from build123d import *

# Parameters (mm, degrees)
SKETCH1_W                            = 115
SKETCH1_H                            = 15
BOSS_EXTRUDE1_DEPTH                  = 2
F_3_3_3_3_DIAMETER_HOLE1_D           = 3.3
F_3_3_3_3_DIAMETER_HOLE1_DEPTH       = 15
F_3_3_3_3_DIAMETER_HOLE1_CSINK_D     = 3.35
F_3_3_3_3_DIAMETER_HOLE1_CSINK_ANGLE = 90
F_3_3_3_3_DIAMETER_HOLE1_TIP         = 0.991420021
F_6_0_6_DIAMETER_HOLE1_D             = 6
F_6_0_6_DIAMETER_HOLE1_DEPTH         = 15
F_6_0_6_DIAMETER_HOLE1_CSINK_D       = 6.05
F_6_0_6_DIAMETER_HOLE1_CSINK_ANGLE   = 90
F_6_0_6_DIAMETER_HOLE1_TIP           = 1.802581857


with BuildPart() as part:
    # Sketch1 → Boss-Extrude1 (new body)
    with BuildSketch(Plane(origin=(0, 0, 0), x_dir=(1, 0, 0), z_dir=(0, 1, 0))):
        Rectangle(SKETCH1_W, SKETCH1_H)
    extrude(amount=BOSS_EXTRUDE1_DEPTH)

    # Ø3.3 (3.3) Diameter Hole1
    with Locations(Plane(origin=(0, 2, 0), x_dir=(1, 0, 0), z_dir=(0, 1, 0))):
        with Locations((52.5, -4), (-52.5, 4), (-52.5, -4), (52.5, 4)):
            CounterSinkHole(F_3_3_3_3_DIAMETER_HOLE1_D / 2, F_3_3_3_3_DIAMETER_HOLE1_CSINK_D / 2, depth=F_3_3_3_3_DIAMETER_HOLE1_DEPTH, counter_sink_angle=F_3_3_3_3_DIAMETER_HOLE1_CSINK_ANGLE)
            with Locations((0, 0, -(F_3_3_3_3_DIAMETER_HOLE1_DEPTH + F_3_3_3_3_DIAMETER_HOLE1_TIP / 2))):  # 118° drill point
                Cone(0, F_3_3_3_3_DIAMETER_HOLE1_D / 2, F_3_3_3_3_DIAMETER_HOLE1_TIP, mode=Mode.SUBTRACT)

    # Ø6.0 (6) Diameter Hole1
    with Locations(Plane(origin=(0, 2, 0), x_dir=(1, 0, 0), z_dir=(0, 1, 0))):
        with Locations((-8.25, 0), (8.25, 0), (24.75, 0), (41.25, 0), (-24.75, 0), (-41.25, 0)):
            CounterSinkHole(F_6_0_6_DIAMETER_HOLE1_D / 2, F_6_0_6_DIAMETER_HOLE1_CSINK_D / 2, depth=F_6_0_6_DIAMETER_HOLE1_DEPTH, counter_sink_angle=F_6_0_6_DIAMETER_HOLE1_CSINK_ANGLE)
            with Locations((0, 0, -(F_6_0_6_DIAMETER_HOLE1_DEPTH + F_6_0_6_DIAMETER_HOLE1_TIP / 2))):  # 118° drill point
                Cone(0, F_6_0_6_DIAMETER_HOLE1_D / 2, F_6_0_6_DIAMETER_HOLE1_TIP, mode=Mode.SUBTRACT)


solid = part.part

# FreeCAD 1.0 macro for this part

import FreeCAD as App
import Part
import Sketcher
Q = App.Units.Quantity

doc = App.newDocument("Part")
body = doc.addObject("PartDesign::Body", "Body")

sketch1 = body.newObject("Sketcher::SketchObject", "Sketch")
sketch1.AttachmentSupport = (doc.getObject("XZ_Plane"), [""])
sketch1.MapMode = "FlatFace"
sketch1.addGeometry(Part.LineSegment(App.Vector(-58, -8, 0), App.Vector(-58, 8, 0)), False)
sketch1.addGeometry(Part.LineSegment(App.Vector(-58, 8, 0), App.Vector(58, 8, 0)), False)
sketch1.addGeometry(Part.LineSegment(App.Vector(58, 8, 0), App.Vector(58, -8, 0)), False)
sketch1.addGeometry(Part.LineSegment(App.Vector(58, -8, 0), App.Vector(-58, -8, 0)), False)
sketch1.addConstraint(Sketcher.Constraint("Coincident", 0, 2, 1, 1))
sketch1.addConstraint(Sketcher.Constraint("Coincident", 1, 2, 2, 1))
sketch1.addConstraint(Sketcher.Constraint("Coincident", 2, 2, 3, 1))
sketch1.addConstraint(Sketcher.Constraint("Coincident", 3, 2, 0, 1))
sketch1.addConstraint(Sketcher.Constraint("Vertical", 0))
sketch1.addConstraint(Sketcher.Constraint("Horizontal", 1))
sketch1.addConstraint(Sketcher.Constraint("Vertical", 2))
sketch1.addConstraint(Sketcher.Constraint("Horizontal", 3))
sketch1.addConstraint(Sketcher.Constraint("Symmetric", 0, 2, 2, 2, -1, 1))
sketch1.addConstraint(Sketcher.Constraint("DistanceX", 1, 1, 1, 2, Q("115 mm")))
sketch1.addConstraint(Sketcher.Constraint("DistanceY", 0, 1, 0, 2, Q("15 mm")))
pad1 = body.newObject("PartDesign::Pad", "Pad")
pad1.Profile = sketch1
pad1.Length = 2
pad1.Reversed = True

sketch2 = body.newObject("Sketcher::SketchObject", "Sketch001")
sketch2.AttachmentSupport = (doc.getObject("XZ_Plane"), [""])
sketch2.MapMode = "FlatFace"
sketch2.AttachmentOffset = App.Placement(App.Vector(0, 0, -2), App.Rotation())
sketch2.addGeometry(Part.Circle(App.Vector(52.5, 4, 0), App.Vector(0, 0, 1), 1.6), False)
sketch2.addGeometry(Part.Circle(App.Vector(-52.5, -4, 0), App.Vector(0, 0, 1), 1.6), False)
sketch2.addGeometry(Part.Circle(App.Vector(-52.5, 4, 0), App.Vector(0, 0, 1), 1.6), False)
sketch2.addGeometry(Part.Circle(App.Vector(52.5, -4, 0), App.Vector(0, 0, 1), 1.6), False)
sketch2.addConstraint(Sketcher.Constraint("Equal", 0, 1))
sketch2.addConstraint(Sketcher.Constraint("Equal", 1, 2))
sketch2.addConstraint(Sketcher.Constraint("Equal", 2, 3))
sketch2.addConstraint(Sketcher.Constraint("Symmetric", 0, 3, 1, 3, -1, 1))
sketch2.addConstraint(Sketcher.Constraint("Symmetric", 2, 3, 3, 3, -1, 1))
sketch2.addConstraint(Sketcher.Constraint("Symmetric", 0, 3, 2, 3, -2))
sketch2.addConstraint(Sketcher.Constraint("Diameter", 0, Q("3.3 mm")))
sketch2.addConstraint(Sketcher.Constraint("DistanceY", -1, 1, 0, 3, Q("4 mm")))
sketch2.addConstraint(Sketcher.Constraint("DistanceX", 1, 3, 0, 3, Q("105 mm")))
doc.recompute()
hole = body.newObject("PartDesign::Hole", "Hole")
hole.Profile = sketch2
hole.ThreadType = "None"
hole.Diameter = 3.3
hole.DepthType = "Dimension"
hole.Depth = 15
hole.DrillPoint = "Angled"
hole.DrillPointAngle = 118
hole.HoleCutType = "Countersink"
hole.HoleCutDiameter = 3.35
hole.HoleCutCountersinkAngle = 90
hole.Reversed = True

sketch3 = body.newObject("Sketcher::SketchObject", "Sketch002")
sketch3.AttachmentSupport = (doc.getObject("XZ_Plane"), [""])
sketch3.MapMode = "FlatFace"
sketch3.AttachmentOffset = App.Placement(App.Vector(0, 0, -2), App.Rotation())
sketch3.addGeometry(Part.Circle(App.Vector(-8.2, 0, 0), App.Vector(0, 0, 1), 3), False)
sketch3.addGeometry(Part.Circle(App.Vector(8.2, 0, 0), App.Vector(0, 0, 1), 3), False)
sketch3.addGeometry(Part.Circle(App.Vector(24.8, 0, 0), App.Vector(0, 0, 1), 3), False)
sketch3.addGeometry(Part.Circle(App.Vector(41.2, 0, 0), App.Vector(0, 0, 1), 3), False)
sketch3.addGeometry(Part.Circle(App.Vector(-24.8, 0, 0), App.Vector(0, 0, 1), 3), False)
sketch3.addGeometry(Part.Circle(App.Vector(-41.2, 0, 0), App.Vector(0, 0, 1), 3), False)
sketch3.addConstraint(Sketcher.Constraint("Equal", 0, 1))
sketch3.addConstraint(Sketcher.Constraint("Equal", 1, 2))
sketch3.addConstraint(Sketcher.Constraint("Equal", 2, 3))
sketch3.addConstraint(Sketcher.Constraint("Equal", 3, 4))
sketch3.addConstraint(Sketcher.Constraint("Equal", 4, 5))
sketch3.addConstraint(Sketcher.Constraint("Symmetric", 0, 3, 1, 3, -1, 1))
sketch3.addConstraint(Sketcher.Constraint("Symmetric", 2, 3, 4, 3, -1, 1))
sketch3.addConstraint(Sketcher.Constraint("Symmetric", 3, 3, 5, 3, -1, 1))
sketch3.addConstraint(Sketcher.Constraint("PointOnObject", 0, 3, -1))
sketch3.addConstraint(Sketcher.Constraint("PointOnObject", 2, 3, -1))
sketch3.addConstraint(Sketcher.Constraint("PointOnObject", 3, 3, -1))
sketch3.addConstraint(Sketcher.Constraint("Diameter", 0, Q("6 mm")))
sketch3.addConstraint(Sketcher.Constraint("DistanceX", 0, 3, 2, 3, Q("33 mm")))
sketch3.addConstraint(Sketcher.Constraint("DistanceX", 1, 3, 3, 3, Q("33 mm")))
sketch3.addConstraint(Sketcher.Constraint("DistanceX", 0, 3, 1, 3, Q("16.5 mm")))
doc.recompute()
hole2 = body.newObject("PartDesign::Hole", "Hole001")
hole2.Profile = sketch3
hole2.ThreadType = "None"
hole2.Diameter = 6
hole2.DepthType = "Dimension"
hole2.Depth = 15
hole2.DrillPoint = "Angled"
hole2.DrillPointAngle = 118
hole2.HoleCutType = "Countersink"
hole2.HoleCutDiameter = 6.05
hole2.HoleCutCountersinkAngle = 90
hole2.Reversed = True

doc.recompute()
